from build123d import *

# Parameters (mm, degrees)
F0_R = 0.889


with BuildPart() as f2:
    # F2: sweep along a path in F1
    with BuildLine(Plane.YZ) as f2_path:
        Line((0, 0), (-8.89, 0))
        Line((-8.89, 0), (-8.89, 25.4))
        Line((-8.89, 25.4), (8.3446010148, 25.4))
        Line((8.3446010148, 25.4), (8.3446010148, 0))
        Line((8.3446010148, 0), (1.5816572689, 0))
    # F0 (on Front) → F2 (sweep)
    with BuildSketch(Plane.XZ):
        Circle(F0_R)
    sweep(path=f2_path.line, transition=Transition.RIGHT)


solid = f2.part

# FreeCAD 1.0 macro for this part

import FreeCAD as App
import Part
import Sketcher
Q = App.Units.Quantity

doc = App.newDocument("Part")
body = doc.addObject("PartDesign::Body", "Body")

# Sketch on XZ plane
sketch1 = doc.addObject("Sketcher::SketchObject", "Sketch")
body.addObject(sketch1)
sketch1.AttachmentSupport = (doc.XZ_Plane, [""])
sketch1.MapMode = "FlatFace"
sketch1.addGeometry(Part.Circle(App.Vector(0, 0, 0), App.Vector(0, 0, 1), 0.889), False)
sketch1.addConstraint(Sketcher.Constraint("Coincident", 0, 3, -1, 1))
sketch1.addConstraint(Sketcher.Constraint("Diameter", 0, Q("0.07 in")))

# Sketch on YZ plane
sketch2 = doc.addObject("Sketcher::SketchObject", "Sketch001")
body.addObject(sketch2)
sketch2.AttachmentSupport = (doc.YZ_Plane, [""])
sketch2.MapMode = "FlatFace"
sketch2.addGeometry(Part.LineSegment(App.Vector(0, 0, 0), App.Vector(-8.89, 0, 0)), False)
sketch2.addGeometry(Part.LineSegment(App.Vector(-8.89, 0, 0), App.Vector(-8.89, 25.4, 0)), False)
sketch2.addGeometry(Part.LineSegment(App.Vector(-8.89, 25.4, 0), App.Vector(8.344601, 25.4, 0)), False)
sketch2.addGeometry(Part.LineSegment(App.Vector(8.344601, 25.4, 0), App.Vector(8.344601, 0, 0)), False)
sketch2.addGeometry(Part.LineSegment(App.Vector(8.344601, 0, 0), App.Vector(1.581657, 0, 0)), False)
sketch2.addConstraint(Sketcher.Constraint("Coincident", 0, 2, 1, 1))
sketch2.addConstraint(Sketcher.Constraint("Coincident", 1, 2, 2, 1))
sketch2.addConstraint(Sketcher.Constraint("Coincident", 2, 2, 3, 1))
sketch2.addConstraint(Sketcher.Constraint("Coincident", 3, 2, 4, 1))
sketch2.addConstraint(Sketcher.Constraint("Horizontal", 0))
sketch2.addConstraint(Sketcher.Constraint("Vertical", 1))
sketch2.addConstraint(Sketcher.Constraint("Horizontal", 2))
sketch2.addConstraint(Sketcher.Constraint("Vertical", 3))
sketch2.addConstraint(Sketcher.Constraint("Horizontal", 4))
sketch2.addConstraint(Sketcher.Constraint("Coincident", 0, 1, -1, 1))
sketch2.addConstraint(Sketcher.Constraint("PointOnObject", 3, 2, -1))
sketch2.addConstraint(Sketcher.Constraint("DistanceY", 1, 1, 1, 2, Q("1 in")))
sketch2.addConstraint(Sketcher.Constraint("DistanceX", 0, 2, 0, 1, Q("0.35 in")))
sketch2.addConstraint(Sketcher.Constraint("DistanceX", 2, 1, 2, 2, 17.234601))
sketch2.addConstraint(Sketcher.Constraint("DistanceX", 4, 2, 4, 1, 6.762944))
doc.recompute()

additivepipe = doc.addObject("PartDesign::AdditivePipe", "AdditivePipe")
body.addObject(additivepipe)
additivepipe.Profile = sketch1
additivepipe.Spine = (sketch2, ["Edge1", "Edge2", "Edge3", "Edge4", "Edge5"])
additivepipe.Transition = "Right corner"

doc.recompute()
